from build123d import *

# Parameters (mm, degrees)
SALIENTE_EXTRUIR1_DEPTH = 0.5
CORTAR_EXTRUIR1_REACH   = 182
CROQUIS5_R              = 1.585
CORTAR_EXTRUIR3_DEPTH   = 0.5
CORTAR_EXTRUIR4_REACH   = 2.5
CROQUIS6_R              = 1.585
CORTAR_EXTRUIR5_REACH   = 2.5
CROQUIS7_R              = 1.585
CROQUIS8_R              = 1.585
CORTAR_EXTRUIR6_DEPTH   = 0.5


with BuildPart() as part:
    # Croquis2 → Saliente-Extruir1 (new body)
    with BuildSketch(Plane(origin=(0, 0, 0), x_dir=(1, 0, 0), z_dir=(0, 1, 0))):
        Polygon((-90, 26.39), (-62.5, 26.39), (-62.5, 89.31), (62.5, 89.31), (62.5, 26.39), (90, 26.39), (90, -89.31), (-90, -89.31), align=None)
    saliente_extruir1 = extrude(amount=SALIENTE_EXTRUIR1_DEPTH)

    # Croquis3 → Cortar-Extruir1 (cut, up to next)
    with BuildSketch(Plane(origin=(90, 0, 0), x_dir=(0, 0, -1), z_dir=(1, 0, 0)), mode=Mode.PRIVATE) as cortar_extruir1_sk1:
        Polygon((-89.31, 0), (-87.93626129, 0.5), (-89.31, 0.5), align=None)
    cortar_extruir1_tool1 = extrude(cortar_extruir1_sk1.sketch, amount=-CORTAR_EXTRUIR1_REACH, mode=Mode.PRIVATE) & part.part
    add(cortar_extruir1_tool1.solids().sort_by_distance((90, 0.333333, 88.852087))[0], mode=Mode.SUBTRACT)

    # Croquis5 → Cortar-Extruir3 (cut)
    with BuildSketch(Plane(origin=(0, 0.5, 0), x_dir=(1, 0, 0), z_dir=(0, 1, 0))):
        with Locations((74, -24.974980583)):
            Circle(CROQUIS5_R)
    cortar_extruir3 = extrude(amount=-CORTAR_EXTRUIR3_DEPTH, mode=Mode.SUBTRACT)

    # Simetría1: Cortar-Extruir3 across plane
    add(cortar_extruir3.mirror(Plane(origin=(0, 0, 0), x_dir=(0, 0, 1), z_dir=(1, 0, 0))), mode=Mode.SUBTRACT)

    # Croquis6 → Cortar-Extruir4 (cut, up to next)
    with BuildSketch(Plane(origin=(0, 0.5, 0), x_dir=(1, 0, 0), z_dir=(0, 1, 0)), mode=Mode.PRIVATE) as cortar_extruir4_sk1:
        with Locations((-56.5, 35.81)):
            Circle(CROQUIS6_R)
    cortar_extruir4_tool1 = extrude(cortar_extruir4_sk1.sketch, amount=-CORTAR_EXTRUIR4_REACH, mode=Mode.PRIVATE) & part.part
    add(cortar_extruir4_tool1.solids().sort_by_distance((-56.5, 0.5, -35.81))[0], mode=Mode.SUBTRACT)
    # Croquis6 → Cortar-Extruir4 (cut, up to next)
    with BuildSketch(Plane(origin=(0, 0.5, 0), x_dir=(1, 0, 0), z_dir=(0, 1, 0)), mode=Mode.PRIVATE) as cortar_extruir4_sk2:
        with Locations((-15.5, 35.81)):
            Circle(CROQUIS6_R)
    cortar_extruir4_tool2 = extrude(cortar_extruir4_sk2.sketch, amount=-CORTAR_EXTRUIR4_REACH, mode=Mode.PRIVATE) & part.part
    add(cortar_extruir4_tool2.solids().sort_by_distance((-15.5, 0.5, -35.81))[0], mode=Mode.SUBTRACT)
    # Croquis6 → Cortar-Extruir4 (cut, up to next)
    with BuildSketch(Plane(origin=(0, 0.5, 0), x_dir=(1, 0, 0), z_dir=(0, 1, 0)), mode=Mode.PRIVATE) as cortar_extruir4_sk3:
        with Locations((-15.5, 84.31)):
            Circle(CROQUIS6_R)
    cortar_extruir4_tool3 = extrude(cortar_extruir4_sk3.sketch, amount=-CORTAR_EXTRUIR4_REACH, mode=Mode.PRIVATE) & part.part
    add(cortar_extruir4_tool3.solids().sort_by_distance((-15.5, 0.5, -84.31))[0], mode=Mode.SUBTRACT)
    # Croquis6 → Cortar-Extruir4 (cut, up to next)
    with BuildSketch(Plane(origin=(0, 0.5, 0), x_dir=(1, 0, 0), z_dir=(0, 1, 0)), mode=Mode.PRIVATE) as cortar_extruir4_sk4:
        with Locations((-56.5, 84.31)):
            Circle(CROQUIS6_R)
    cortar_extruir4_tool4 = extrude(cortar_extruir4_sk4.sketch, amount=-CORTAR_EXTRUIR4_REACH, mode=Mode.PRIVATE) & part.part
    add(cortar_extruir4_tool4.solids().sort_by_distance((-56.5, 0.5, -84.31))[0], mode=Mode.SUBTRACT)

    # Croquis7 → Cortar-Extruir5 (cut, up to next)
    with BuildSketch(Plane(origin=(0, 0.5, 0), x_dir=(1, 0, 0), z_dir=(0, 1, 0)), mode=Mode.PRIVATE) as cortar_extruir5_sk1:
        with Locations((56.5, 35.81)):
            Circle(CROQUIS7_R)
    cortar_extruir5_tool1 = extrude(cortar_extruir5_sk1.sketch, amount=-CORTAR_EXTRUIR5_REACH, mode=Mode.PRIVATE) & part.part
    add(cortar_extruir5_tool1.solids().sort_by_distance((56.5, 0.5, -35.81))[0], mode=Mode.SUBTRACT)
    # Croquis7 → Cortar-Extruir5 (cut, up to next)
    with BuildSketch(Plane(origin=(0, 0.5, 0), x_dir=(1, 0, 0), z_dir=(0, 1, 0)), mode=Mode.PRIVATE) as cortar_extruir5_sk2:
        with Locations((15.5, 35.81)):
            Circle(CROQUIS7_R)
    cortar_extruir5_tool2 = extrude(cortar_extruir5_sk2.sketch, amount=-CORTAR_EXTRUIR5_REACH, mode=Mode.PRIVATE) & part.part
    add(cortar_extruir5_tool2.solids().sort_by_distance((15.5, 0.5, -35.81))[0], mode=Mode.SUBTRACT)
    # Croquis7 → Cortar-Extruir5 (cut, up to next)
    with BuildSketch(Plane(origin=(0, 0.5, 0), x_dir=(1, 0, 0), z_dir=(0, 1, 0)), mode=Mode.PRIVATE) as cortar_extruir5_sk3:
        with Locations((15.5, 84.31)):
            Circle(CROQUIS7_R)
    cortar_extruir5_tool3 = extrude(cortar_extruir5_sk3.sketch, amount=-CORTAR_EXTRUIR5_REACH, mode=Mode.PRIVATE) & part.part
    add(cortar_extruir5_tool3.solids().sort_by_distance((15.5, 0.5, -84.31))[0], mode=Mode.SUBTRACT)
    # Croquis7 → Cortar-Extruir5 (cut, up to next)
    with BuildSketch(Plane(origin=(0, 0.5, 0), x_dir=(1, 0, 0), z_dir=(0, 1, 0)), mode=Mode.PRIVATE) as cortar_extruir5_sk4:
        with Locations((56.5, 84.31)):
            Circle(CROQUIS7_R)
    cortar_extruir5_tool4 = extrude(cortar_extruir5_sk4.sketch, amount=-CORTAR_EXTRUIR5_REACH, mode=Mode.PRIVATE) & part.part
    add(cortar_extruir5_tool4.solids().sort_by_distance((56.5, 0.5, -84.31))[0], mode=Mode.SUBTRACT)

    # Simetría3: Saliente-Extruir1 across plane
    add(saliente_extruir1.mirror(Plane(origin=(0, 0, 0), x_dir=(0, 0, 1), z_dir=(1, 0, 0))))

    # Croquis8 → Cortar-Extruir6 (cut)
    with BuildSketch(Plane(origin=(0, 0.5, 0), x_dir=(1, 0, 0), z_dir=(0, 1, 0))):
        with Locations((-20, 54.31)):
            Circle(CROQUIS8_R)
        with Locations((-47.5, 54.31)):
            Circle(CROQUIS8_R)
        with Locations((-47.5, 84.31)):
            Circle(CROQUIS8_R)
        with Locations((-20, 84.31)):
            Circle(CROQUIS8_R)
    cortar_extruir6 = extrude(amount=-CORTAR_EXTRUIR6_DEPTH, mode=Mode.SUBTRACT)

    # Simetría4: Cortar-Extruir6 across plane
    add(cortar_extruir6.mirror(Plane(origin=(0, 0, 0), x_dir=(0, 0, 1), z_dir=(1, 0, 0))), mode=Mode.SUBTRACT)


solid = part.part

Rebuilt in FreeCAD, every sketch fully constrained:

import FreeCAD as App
import Part
import Sketcher
from FreeCAD import Vector
Q = App.Units.Quantity

doc = App.newDocument("Part")
body = doc.addObject("PartDesign::Body", "Body")

sketch1 = doc.addObject("Sketcher::SketchObject", "Sketch")
body.addObject(sketch1)
sketch1.AttachmentSupport = (doc.XZ_Plane, [""])
sketch1.MapMode = "FlatFace"
sketch1.addGeometry([
    Part.LineSegment(Vector(-62.5, -26.39, 0), Vector(-90, -26.39, 0)),
    Part.LineSegment(Vector(-90, -26.39, 0), Vector(-90, 89.31, 0)),
    Part.LineSegment(Vector(-90, 89.31, 0), Vector(90, 89.31, 0)),
    Part.LineSegment(Vector(90, 89.31, 0), Vector(90, -26.39, 0)),
    Part.LineSegment(Vector(90, -26.39, 0), Vector(62.5, -26.39, 0)),
    Part.LineSegment(Vector(62.5, -26.39, 0), Vector(62.5, -89.31, 0)),
    Part.LineSegment(Vector(62.5, -89.31, 0), Vector(-62.5, -89.31, 0)),
    Part.LineSegment(Vector(-62.5, -89.31, 0), Vector(-62.5, -26.39, 0)),
], False)
sketch1.addConstraint([
    Sketcher.Constraint("Coincident", 0, 2, 1, 1),
    Sketcher.Constraint("Coincident", 1, 2, 2, 1),
    Sketcher.Constraint("Coincident", 2, 2, 3, 1),
    Sketcher.Constraint("Coincident", 3, 2, 4, 1),
    Sketcher.Constraint("Coincident", 4, 2, 5, 1),
    Sketcher.Constraint("Coincident", 5, 2, 6, 1),
    Sketcher.Constraint("Coincident", 6, 2, 7, 1),
    Sketcher.Constraint("Coincident", 7, 2, 0, 1),
    Sketcher.Constraint("Horizontal", 0),
    Sketcher.Constraint("Vertical", 1),
    Sketcher.Constraint("Horizontal", 2),
    Sketcher.Constraint("Vertical", 3),
    Sketcher.Constraint("Horizontal", 4),
    Sketcher.Constraint("Vertical", 5),
    Sketcher.Constraint("Horizontal", 6),
    Sketcher.Constraint("Vertical", 7),
    Sketcher.Constraint("Symmetric", 0, 2, 3, 2, -2),
    Sketcher.Constraint("Equal", 0, 4),
    Sketcher.Constraint("DistanceX", 2, 1, 2, 2, 180.0),
    Sketcher.Constraint("DistanceX", 6, 2, 6, 1, 125.0),
    Sketcher.Constraint("DistanceY", 1, 1, 1, 2, 115.7),
    Sketcher.Constraint("DistanceY", 5, 2, 5, 1, 62.92),
    Sketcher.Constraint("DistanceY", 0, 2, -1, 1, 26.39),
])
pad1 = doc.addObject("PartDesign::Pad", "Pad")
body.addObject(pad1)
pad1.Profile = sketch1
pad1.Length = 0.5
pad1.Reversed = True

sketch2 = doc.addObject("Sketcher::SketchObject", "Sketch001")
body.addObject(sketch2)
sketch2.AttachmentSupport = (doc.YZ_Plane, [""])
sketch2.MapMode = "FlatFace"
sketch2.AttachmentOffset = App.Placement(Vector(0, 0, 90), App.Rotation())
sketch2.addGeometry([
    Part.LineSegment(Vector(0, 89.31, 0), Vector(0.5, 87.936261, 0)),
    Part.LineSegment(Vector(0.5, 87.936261, 0), Vector(0.5, 89.31, 0)),
    Part.LineSegment(Vector(0.5, 89.31, 0), Vector(0, 89.31, 0)),
], False)
sketch2.addConstraint([
    Sketcher.Constraint("Coincident", 0, 2, 1, 1),
    Sketcher.Constraint("Coincident", 1, 2, 2, 1),
    Sketcher.Constraint("Coincident", 2, 2, 0, 1),
    Sketcher.Constraint("Vertical", 1),
    Sketcher.Constraint("Horizontal", 2),
    Sketcher.Constraint("PointOnObject", 2, 2, -2),
    Sketcher.Constraint("Angle", 0, Q("-70 deg")),
    Sketcher.Constraint("DistanceX", 2, 2, 2, 1, 0.5),
    Sketcher.Constraint("DistanceY", -1, 1, 1, 2, 89.31),
])
pocket1 = doc.addObject("PartDesign::Pocket", "Pocket")
body.addObject(pocket1)
pocket1.Profile = sketch2
pocket1.Type = "UpToFirst"

sketch3 = doc.addObject("Sketcher::SketchObject", "Sketch002")
body.addObject(sketch3)
sketch3.AttachmentSupport = (doc.XZ_Plane, [""])
sketch3.MapMode = "FlatFace"
sketch3.AttachmentOffset = App.Placement(Vector(0, 0, -0.5), App.Rotation())
sketch3.addGeometry(Part.Circle(Vector(74, 24.974981, 0), Vector(0, 0, 1), 1.585), False)
sketch3.addConstraint([
    Sketcher.Constraint("Diameter", 0, 3.17),
    Sketcher.Constraint("DistanceX", -1, 1, 0, 3, 74.0),
    Sketcher.Constraint("DistanceY", -1, 1, 0, 3, 24.974981),
])
pocket2 = doc.addObject("PartDesign::Pocket", "Pocket001")
body.addObject(pocket2)
pocket2.Profile = sketch3
pocket2.Length = 0.5
pocket2.Reversed = True
doc.recompute()

mirrored = doc.addObject("PartDesign::Mirrored", "Mirrored")
body.addObject(mirrored)
mirrored.Originals = [pocket2]
mirrored.MirrorPlane = (doc.YZ_Plane, [""])
body.Tip = mirrored

sketch4 = doc.addObject("Sketcher::SketchObject", "Sketch003")
body.addObject(sketch4)
sketch4.AttachmentSupport = (doc.XZ_Plane, [""])
sketch4.MapMode = "FlatFace"
sketch4.AttachmentOffset = App.Placement(Vector(0, 0, -0.5), App.Rotation())
sketch4.addGeometry(Part.Circle(Vector(-56.5, -35.81, 0), Vector(0, 0, 1), 1.585), False)
sketch4.addConstraint([
    Sketcher.Constraint("Diameter", 0, 3.17),
    Sketcher.Constraint("DistanceX", 0, 3, -1, 1, 56.5),
    Sketcher.Constraint("DistanceY", 0, 3, -1, 1, 35.81),
])
pocket3 = doc.addObject("PartDesign::Pocket", "Pocket002")
body.addObject(pocket3)
pocket3.Profile = sketch4
pocket3.Type = "UpToFirst"
pocket3.Reversed = True

sketch5 = doc.addObject("Sketcher::SketchObject", "Sketch004")
body.addObject(sketch5)
sketch5.AttachmentSupport = (doc.XZ_Plane, [""])
sketch5.MapMode = "FlatFace"
sketch5.AttachmentOffset = App.Placement(Vector(0, 0, -0.5), App.Rotation())
sketch5.addGeometry(Part.Circle(Vector(-15.5, -35.81, 0), Vector(0, 0, 1), 1.585), False)
sketch5.addConstraint([
    Sketcher.Constraint("Diameter", 0, 3.17),
    Sketcher.Constraint("DistanceX", 0, 3, -1, 1, 15.5),
    Sketcher.Constraint("DistanceY", 0, 3, -1, 1, 35.81),
])
pocket4 = doc.addObject("PartDesign::Pocket", "Pocket003")
body.addObject(pocket4)
pocket4.Profile = sketch5
pocket4.Type = "UpToFirst"
pocket4.Reversed = True

sketch6 = doc.addObject("Sketcher::SketchObject", "Sketch005")
body.addObject(sketch6)
sketch6.AttachmentSupport = (doc.XZ_Plane, [""])
sketch6.MapMode = "FlatFace"
sketch6.AttachmentOffset = App.Placement(Vector(0, 0, -0.5), App.Rotation())
sketch6.addGeometry(Part.Circle(Vector(-15.5, -84.31, 0), Vector(0, 0, 1), 1.585), False)
sketch6.addConstraint([
    Sketcher.Constraint("Diameter", 0, 3.17),
    Sketcher.Constraint("DistanceX", 0, 3, -1, 1, 15.5),
    Sketcher.Constraint("DistanceY", 0, 3, -1, 1, 84.31),
])
pocket5 = doc.addObject("PartDesign::Pocket", "Pocket004")
body.addObject(pocket5)
pocket5.Profile = sketch6
pocket5.Type = "UpToFirst"
pocket5.Reversed = True

sketch7 = doc.addObject("Sketcher::SketchObject", "Sketch006")
body.addObject(sketch7)
sketch7.AttachmentSupport = (doc.XZ_Plane, [""])
sketch7.MapMode = "FlatFace"
sketch7.AttachmentOffset = App.Placement(Vector(0, 0, -0.5), App.Rotation())
sketch7.addGeometry(Part.Circle(Vector(-56.5, -84.31, 0), Vector(0, 0, 1), 1.585), False)
sketch7.addConstraint([
    Sketcher.Constraint("Diameter", 0, 3.17),
    Sketcher.Constraint("DistanceX", 0, 3, -1, 1, 56.5),
    Sketcher.Constraint("DistanceY", 0, 3, -1, 1, 84.31),
])
pocket6 = doc.addObject("PartDesign::Pocket", "Pocket005")
body.addObject(pocket6)
pocket6.Profile = sketch7
pocket6.Type = "UpToFirst"
pocket6.Reversed = True

sketch8 = doc.addObject("Sketcher::SketchObject", "Sketch007")
body.addObject(sketch8)
sketch8.AttachmentSupport = (doc.XZ_Plane, [""])
sketch8.MapMode = "FlatFace"
sketch8.AttachmentOffset = App.Placement(Vector(0, 0, -0.5), App.Rotation())
sketch8.addGeometry(Part.Circle(Vector(56.5, -35.81, 0), Vector(0, 0, 1), 1.585), False)
sketch8.addConstraint([
    Sketcher.Constraint("Diameter", 0, 3.17),
    Sketcher.Constraint("DistanceX", -1, 1, 0, 3, 56.5),
    Sketcher.Constraint("DistanceY", 0, 3, -1, 1, 35.81),
])
pocket7 = doc.addObject("PartDesign::Pocket", "Pocket006")
body.addObject(pocket7)
pocket7.Profile = sketch8
pocket7.Type = "UpToFirst"
pocket7.Reversed = True

sketch9 = doc.addObject("Sketcher::SketchObject", "Sketch008")
body.addObject(sketch9)
sketch9.AttachmentSupport = (doc.XZ_Plane, [""])
sketch9.MapMode = "FlatFace"
sketch9.AttachmentOffset = App.Placement(Vector(0, 0, -0.5), App.Rotation())
sketch9.addGeometry(Part.Circle(Vector(15.5, -35.81, 0), Vector(0, 0, 1), 1.585), False)
sketch9.addConstraint([
    Sketcher.Constraint("Diameter", 0, 3.17),
    Sketcher.Constraint("DistanceX", -1, 1, 0, 3, 15.5),
    Sketcher.Constraint("DistanceY", 0, 3, -1, 1, 35.81),
])
pocket8 = doc.addObject("PartDesign::Pocket", "Pocket007")
body.addObject(pocket8)
pocket8.Profile = sketch9
pocket8.Type = "UpToFirst"
pocket8.Reversed = True

sketch10 = doc.addObject("Sketcher::SketchObject", "Sketch009")
body.addObject(sketch10)
sketch10.AttachmentSupport = (doc.XZ_Plane, [""])
sketch10.MapMode = "FlatFace"
sketch10.AttachmentOffset = App.Placement(Vector(0, 0, -0.5), App.Rotation())
sketch10.addGeometry(Part.Circle(Vector(15.5, -84.31, 0), Vector(0, 0, 1), 1.585), False)
sketch10.addConstraint([
    Sketcher.Constraint("Diameter", 0, 3.17),
    Sketcher.Constraint("DistanceX", -1, 1, 0, 3, 15.5),
    Sketcher.Constraint("DistanceY", 0, 3, -1, 1, 84.31),
])
pocket9 = doc.addObject("PartDesign::Pocket", "Pocket008")
body.addObject(pocket9)
pocket9.Profile = sketch10
pocket9.Type = "UpToFirst"
pocket9.Reversed = True

sketch11 = doc.addObject("Sketcher::SketchObject", "Sketch010")
body.addObject(sketch11)
sketch11.AttachmentSupport = (doc.XZ_Plane, [""])
sketch11.MapMode = "FlatFace"
sketch11.AttachmentOffset = App.Placement(Vector(0, 0, -0.5), App.Rotation())
sketch11.addGeometry(Part.Circle(Vector(56.5, -84.31, 0), Vector(0, 0, 1), 1.585), False)
sketch11.addConstraint([
    Sketcher.Constraint("Diameter", 0, 3.17),
    Sketcher.Constraint("DistanceX", -1, 1, 0, 3, 56.5),
    Sketcher.Constraint("DistanceY", 0, 3, -1, 1, 84.31),
])
pocket10 = doc.addObject("PartDesign::Pocket", "Pocket009")
body.addObject(pocket10)
pocket10.Profile = sketch11
pocket10.Type = "UpToFirst"
pocket10.Reversed = True
doc.recompute()

mirrored2 = doc.addObject("PartDesign::Mirrored", "Mirrored001")
body.addObject(mirrored2)
mirrored2.Originals = [pad1]
mirrored2.MirrorPlane = (doc.YZ_Plane, [""])
body.Tip = mirrored2

sketch12 = doc.addObject("Sketcher::SketchObject", "Sketch011")
body.addObject(sketch12)
sketch12.AttachmentSupport = (doc.XZ_Plane, [""])
sketch12.MapMode = "FlatFace"
sketch12.AttachmentOffset = App.Placement(Vector(0, 0, -0.5), App.Rotation())
sketch12.addGeometry([
    Part.Circle(Vector(-20, -54.31, 0), Vector(0, 0, 1), 1.585),
    Part.Circle(Vector(-47.5, -54.31, 0), Vector(0, 0, 1), 1.585),
    Part.Circle(Vector(-47.5, -84.31, 0), Vector(0, 0, 1), 1.585),
    Part.Circle(Vector(-20, -84.31, 0), Vector(0, 0, 1), 1.585),
], False)
sketch12.addConstraint([
    Sketcher.Constraint("Equal", 0, 1),
    Sketcher.Constraint("Equal", 1, 2),
    Sketcher.Constraint("Equal", 2, 3),
    Sketcher.Constraint("Horizontal", 0, 3, 1, 3),
    Sketcher.Constraint("Horizontal", 2, 3, 3, 3),
    Sketcher.Constraint("Vertical", 1, 3, 2, 3),
    Sketcher.Constraint("Vertical", 0, 3, 3, 3),
    Sketcher.Constraint("Diameter", 0, 3.17),
    Sketcher.Constraint("DistanceX", 0, 3, -1, 1, 20.0),
    Sketcher.Constraint("DistanceY", 2, 3, 1, 3, 30.0),
    Sketcher.Constraint("DistanceX", 1, 3, -1, 1, 47.5),
    Sketcher.Constraint("DistanceY", 0, 3, -1, 1, 54.31),
])
pocket11 = doc.addObject("PartDesign::Pocket", "Pocket010")
body.addObject(pocket11)
pocket11.Profile = sketch12
pocket11.Length = 0.5
pocket11.Reversed = True
doc.recompute()

mirrored3 = doc.addObject("PartDesign::Mirrored", "Mirrored002")
body.addObject(mirrored3)
mirrored3.Originals = [pocket11]
mirrored3.MirrorPlane = (doc.YZ_Plane, [""])
body.Tip = mirrored3

doc.recompute()
